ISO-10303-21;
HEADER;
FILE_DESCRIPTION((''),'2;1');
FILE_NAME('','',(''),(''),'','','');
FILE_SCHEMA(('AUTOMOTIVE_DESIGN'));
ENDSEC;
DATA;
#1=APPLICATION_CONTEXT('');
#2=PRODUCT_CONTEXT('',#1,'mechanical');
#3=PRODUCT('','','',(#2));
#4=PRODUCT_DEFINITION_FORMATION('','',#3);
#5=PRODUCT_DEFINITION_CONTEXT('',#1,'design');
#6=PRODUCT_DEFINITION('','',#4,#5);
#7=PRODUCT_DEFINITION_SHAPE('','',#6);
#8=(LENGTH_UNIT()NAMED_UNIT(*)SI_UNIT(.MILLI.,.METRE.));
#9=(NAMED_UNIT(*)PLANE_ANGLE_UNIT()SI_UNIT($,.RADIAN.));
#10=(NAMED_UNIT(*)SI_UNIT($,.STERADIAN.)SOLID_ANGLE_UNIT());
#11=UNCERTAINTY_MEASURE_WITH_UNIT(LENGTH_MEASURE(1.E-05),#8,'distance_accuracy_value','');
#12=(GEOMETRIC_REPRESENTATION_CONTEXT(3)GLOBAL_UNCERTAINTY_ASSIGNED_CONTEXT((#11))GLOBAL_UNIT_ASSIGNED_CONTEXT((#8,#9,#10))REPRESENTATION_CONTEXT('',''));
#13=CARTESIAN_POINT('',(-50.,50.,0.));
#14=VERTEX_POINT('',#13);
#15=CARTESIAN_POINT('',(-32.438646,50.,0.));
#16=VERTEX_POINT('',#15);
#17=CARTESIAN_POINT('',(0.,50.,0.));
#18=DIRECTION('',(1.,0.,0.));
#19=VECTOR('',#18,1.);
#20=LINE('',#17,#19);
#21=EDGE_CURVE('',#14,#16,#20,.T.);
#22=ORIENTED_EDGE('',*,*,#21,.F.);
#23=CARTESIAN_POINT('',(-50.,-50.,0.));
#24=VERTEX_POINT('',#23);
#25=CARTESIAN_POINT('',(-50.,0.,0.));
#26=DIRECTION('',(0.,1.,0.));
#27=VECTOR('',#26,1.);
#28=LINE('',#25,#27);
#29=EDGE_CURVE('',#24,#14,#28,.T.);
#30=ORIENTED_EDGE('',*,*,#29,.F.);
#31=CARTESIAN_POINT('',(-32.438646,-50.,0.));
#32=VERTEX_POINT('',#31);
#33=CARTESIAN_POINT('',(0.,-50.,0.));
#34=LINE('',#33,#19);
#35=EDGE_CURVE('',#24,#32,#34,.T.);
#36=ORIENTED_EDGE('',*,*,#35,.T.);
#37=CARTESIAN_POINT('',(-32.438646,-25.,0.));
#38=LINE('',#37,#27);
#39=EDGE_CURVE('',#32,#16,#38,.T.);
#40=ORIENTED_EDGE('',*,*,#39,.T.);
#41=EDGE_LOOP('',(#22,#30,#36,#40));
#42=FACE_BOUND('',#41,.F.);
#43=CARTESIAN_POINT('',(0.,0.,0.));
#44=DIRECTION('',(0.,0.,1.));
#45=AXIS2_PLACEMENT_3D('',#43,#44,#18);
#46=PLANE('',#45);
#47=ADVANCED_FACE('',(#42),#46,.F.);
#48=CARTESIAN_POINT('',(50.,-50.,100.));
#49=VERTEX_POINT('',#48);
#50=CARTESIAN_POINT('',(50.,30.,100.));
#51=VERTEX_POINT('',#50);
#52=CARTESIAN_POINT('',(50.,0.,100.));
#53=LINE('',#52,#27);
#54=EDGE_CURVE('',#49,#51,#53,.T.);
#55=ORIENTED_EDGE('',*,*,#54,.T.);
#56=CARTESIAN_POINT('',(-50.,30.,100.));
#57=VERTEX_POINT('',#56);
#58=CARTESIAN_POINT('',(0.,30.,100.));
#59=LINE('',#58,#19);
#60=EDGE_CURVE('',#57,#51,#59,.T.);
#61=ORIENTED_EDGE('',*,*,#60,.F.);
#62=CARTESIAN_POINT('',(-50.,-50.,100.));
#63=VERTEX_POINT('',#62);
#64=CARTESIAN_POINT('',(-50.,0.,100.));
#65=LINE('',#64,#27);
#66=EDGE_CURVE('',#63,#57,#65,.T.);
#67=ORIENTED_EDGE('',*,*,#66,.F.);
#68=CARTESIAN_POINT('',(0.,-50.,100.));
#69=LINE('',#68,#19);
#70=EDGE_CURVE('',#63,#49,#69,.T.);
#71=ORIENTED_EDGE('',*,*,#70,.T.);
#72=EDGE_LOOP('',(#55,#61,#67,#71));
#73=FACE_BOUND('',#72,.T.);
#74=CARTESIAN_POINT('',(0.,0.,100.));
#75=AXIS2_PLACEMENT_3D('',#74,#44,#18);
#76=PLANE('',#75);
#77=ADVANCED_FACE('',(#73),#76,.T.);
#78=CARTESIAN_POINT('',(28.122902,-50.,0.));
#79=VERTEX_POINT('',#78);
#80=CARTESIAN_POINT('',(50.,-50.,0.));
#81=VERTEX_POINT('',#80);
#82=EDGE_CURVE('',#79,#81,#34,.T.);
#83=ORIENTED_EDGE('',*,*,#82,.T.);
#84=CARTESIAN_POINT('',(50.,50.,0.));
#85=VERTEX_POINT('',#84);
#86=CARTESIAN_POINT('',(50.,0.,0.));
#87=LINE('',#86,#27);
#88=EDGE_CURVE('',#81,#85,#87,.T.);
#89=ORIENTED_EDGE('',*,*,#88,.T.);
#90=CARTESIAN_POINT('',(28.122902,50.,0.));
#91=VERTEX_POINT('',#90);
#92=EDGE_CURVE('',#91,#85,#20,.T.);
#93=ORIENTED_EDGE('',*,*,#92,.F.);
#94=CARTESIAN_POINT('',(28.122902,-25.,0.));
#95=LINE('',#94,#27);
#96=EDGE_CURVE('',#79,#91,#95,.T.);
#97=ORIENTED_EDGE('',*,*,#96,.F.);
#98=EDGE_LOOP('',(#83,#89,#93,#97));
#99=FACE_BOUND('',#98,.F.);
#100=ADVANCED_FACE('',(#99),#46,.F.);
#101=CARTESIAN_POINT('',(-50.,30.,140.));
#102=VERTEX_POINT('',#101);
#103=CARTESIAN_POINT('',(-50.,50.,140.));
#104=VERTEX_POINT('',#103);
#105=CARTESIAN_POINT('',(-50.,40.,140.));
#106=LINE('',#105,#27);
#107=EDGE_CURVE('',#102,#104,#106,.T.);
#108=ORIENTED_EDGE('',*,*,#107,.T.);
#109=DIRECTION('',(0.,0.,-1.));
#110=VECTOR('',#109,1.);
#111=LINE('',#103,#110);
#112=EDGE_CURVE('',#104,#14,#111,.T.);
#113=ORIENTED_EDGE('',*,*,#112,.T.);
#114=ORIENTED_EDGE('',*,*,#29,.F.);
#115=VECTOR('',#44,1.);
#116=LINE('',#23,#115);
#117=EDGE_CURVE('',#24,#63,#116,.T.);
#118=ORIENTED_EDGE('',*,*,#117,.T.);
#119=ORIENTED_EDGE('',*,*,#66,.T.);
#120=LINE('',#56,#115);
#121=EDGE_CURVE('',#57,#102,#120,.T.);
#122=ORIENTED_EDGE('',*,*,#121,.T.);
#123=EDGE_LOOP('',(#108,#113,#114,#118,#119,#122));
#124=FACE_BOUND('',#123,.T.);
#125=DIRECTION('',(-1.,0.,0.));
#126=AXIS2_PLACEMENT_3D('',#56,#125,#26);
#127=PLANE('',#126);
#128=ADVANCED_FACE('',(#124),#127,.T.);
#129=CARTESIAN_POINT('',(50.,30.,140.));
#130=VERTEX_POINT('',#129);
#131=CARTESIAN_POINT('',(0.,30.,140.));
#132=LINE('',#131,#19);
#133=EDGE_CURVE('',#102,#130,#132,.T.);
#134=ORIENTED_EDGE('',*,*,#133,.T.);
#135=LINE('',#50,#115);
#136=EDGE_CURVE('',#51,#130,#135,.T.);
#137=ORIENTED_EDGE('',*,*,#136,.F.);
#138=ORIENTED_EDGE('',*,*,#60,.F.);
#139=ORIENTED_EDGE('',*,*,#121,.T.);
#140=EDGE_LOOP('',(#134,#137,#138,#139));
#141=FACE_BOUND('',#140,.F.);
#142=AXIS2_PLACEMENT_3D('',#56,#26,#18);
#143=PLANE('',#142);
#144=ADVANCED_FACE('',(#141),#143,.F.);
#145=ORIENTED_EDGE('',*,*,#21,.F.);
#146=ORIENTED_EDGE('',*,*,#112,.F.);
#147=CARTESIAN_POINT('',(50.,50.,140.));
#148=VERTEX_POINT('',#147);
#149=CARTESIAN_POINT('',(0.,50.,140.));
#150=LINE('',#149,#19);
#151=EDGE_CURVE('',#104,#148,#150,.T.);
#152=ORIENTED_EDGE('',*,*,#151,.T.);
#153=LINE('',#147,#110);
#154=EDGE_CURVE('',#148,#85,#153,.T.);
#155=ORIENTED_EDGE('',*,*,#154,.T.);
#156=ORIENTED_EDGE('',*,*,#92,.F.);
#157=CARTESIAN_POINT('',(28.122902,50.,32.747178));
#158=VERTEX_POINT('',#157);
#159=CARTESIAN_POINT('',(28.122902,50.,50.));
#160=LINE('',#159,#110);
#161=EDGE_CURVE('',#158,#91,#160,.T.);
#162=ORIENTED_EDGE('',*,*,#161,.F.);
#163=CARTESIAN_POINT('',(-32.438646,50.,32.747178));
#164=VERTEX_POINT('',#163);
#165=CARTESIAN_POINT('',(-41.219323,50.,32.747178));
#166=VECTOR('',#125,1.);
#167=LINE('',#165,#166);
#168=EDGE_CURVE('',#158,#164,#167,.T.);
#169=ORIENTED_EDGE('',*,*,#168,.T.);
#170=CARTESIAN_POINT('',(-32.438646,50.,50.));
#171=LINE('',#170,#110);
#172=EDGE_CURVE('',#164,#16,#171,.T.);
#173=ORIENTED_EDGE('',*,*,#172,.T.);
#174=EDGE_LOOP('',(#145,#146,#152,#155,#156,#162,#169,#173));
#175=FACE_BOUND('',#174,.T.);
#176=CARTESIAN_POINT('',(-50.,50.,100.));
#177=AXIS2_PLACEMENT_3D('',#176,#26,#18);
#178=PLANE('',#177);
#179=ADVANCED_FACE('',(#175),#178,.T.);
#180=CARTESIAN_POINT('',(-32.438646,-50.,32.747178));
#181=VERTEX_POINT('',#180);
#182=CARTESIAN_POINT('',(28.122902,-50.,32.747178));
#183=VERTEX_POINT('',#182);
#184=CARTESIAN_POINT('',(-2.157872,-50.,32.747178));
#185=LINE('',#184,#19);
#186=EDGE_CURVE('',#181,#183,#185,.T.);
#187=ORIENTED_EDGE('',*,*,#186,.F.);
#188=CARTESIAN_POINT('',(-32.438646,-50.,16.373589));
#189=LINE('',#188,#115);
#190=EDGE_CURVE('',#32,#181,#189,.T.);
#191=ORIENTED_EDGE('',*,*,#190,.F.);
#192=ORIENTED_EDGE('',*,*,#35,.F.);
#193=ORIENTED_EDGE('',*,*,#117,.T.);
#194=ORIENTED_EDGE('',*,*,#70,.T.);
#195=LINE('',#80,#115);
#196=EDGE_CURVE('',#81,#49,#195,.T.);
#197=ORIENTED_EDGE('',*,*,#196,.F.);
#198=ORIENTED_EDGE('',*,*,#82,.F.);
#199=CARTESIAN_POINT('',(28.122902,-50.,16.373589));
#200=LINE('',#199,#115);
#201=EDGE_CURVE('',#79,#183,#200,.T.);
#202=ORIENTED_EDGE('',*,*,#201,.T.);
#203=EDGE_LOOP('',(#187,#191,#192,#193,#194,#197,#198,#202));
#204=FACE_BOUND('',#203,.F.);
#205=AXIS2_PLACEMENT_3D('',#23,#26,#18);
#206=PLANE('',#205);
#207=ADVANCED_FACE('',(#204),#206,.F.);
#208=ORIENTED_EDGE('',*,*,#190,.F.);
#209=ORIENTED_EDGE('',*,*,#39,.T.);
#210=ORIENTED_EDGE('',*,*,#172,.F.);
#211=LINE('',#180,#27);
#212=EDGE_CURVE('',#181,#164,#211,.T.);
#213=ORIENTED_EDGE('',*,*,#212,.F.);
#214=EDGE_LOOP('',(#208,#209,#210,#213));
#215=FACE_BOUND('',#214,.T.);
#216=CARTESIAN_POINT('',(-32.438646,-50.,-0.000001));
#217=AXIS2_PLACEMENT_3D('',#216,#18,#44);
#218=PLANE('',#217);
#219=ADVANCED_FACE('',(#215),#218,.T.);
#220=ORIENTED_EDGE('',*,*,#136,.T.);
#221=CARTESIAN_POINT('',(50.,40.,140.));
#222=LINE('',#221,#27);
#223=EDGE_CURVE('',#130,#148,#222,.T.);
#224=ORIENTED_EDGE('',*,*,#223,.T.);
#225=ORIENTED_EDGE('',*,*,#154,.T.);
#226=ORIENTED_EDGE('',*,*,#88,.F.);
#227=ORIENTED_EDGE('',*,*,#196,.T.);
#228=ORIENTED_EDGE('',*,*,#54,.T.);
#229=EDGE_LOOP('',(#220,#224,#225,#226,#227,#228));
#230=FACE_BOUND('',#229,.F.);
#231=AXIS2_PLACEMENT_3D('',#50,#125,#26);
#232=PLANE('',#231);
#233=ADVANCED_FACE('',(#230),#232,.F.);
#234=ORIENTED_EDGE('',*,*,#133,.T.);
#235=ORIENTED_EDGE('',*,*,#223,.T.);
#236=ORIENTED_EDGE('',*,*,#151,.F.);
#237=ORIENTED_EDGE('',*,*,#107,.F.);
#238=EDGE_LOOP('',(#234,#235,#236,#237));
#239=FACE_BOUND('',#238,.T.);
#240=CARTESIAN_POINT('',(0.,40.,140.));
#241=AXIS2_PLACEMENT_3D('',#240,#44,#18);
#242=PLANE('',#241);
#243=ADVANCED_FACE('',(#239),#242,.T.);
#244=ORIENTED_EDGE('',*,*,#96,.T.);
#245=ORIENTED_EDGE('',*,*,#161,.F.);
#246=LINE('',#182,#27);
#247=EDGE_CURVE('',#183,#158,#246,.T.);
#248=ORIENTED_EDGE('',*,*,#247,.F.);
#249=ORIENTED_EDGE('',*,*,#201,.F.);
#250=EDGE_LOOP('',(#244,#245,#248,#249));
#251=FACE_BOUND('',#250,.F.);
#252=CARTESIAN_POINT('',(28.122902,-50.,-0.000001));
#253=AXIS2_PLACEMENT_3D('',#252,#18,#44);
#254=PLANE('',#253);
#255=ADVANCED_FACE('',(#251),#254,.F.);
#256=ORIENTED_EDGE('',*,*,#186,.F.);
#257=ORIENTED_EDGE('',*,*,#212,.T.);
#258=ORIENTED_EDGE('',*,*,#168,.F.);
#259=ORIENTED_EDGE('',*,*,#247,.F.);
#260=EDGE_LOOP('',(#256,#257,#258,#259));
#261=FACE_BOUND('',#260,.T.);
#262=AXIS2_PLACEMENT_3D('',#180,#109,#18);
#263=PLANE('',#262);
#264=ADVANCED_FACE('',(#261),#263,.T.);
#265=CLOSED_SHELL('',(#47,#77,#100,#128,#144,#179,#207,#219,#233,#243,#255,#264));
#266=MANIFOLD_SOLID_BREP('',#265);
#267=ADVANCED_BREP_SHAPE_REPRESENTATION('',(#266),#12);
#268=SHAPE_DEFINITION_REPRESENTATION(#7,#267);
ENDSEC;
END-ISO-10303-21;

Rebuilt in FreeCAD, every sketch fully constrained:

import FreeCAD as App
import Part
import Sketcher

V = App.Vector
Q = App.Units.Quantity


def add_polygon(sketch, points):
    """Adds a closed chain of lines whose ends are joined by coincident constraints."""
    first, n = sketch.GeometryCount, len(points)
    for a, b in zip(points, points[1:] + points[:1]):
        sketch.addGeometry(Part.LineSegment(App.Vector(*a, 0), App.Vector(*b, 0)), False)
    for i in range(n):
        sketch.addConstraint(Sketcher.Constraint("Coincident", first + i, 2, first + (i + 1) % n, 1))

doc = App.newDocument("Part")
body = doc.addObject("PartDesign::Body", "Body")

sketch1 = body.newObject("Sketcher::SketchObject", "Sketch")
sketch1.AttachmentSupport = (doc.getObject("XY_Plane"), [""])
sketch1.MapMode = "FlatFace"
add_polygon(sketch1, [(-50, 50), (-50, -50), (50, -50), (50, 50)])
sketch1.addConstraint([
    Sketcher.Constraint("Vertical", 0),
    Sketcher.Constraint("Horizontal", 1),
    Sketcher.Constraint("Vertical", 2),
    Sketcher.Constraint("Horizontal", 3),
    Sketcher.Constraint("Symmetric", 0, 2, 2, 2, -1, 1),
    Sketcher.Constraint("Equal", 3, 0),
    Sketcher.Constraint("DistanceX", 1, 1, 1, 2, Q("100 mm")),
])
pad1 = body.newObject("PartDesign::Pad", "Pad")
pad1.Profile = sketch1
pad1.Length = 100

sketch2 = body.newObject("Sketcher::SketchObject", "Sketch001")
sketch2.AttachmentSupport = (doc.getObject("XY_Plane"), [""])
sketch2.MapMode = "FlatFace"
sketch2.AttachmentOffset = App.Placement(V(0, 0, 100), App.Rotation())
add_polygon(sketch2, [(-50, 50), (-50, 30), (50, 30), (50, 50)])
sketch2.addConstraint([
    Sketcher.Constraint("Vertical", 0),
    Sketcher.Constraint("Horizontal", 1),
    Sketcher.Constraint("Vertical", 2),
    Sketcher.Constraint("Horizontal", 3),
    Sketcher.Constraint("DistanceX", 1, 1, 1, 2, Q("100 mm")),
    Sketcher.Constraint("DistanceY", 0, 2, 0, 1, Q("20 mm")),
    Sketcher.Constraint("DistanceX", 0, 2, -1, 1, Q("50 mm")),
    Sketcher.Constraint("DistanceY", -1, 1, 0, 2, Q("30 mm")),
])
pad2 = body.newObject("PartDesign::Pad", "Pad001")
pad2.Profile = sketch2
pad2.Length = 40

sketch3 = body.newObject("Sketcher::SketchObject", "Sketch002")
sketch3.AttachmentSupport = (doc.getObject("XZ_Plane"), [""])
sketch3.MapMode = "FlatFace"
sketch3.AttachmentOffset = App.Placement(V(0, 0, 50), App.Rotation())
add_polygon(sketch3, [(-32, 33), (-32, 0), (28, 0), (28, 33)])
sketch3.addConstraint([
    Sketcher.Constraint("Vertical", 0),
    Sketcher.Constraint("Horizontal", 1),
    Sketcher.Constraint("Vertical", 2),
    Sketcher.Constraint("Horizontal", 3),
    Sketcher.Constraint("PointOnObject", 0, 2, -1),
    Sketcher.Constraint("DistanceX", 1, 1, 1, 2, Q("60.561549 mm")),
    Sketcher.Constraint("DistanceY", 0, 2, 0, 1, Q("32.747179 mm")),
    Sketcher.Constraint("DistanceX", 0, 2, -1, 1, Q("32.438646 mm")),
])
pocket1 = body.newObject("PartDesign::Pocket", "Pocket")
pocket1.Profile = sketch3
pocket1.Type = "ThroughAll"

doc.recompute()
